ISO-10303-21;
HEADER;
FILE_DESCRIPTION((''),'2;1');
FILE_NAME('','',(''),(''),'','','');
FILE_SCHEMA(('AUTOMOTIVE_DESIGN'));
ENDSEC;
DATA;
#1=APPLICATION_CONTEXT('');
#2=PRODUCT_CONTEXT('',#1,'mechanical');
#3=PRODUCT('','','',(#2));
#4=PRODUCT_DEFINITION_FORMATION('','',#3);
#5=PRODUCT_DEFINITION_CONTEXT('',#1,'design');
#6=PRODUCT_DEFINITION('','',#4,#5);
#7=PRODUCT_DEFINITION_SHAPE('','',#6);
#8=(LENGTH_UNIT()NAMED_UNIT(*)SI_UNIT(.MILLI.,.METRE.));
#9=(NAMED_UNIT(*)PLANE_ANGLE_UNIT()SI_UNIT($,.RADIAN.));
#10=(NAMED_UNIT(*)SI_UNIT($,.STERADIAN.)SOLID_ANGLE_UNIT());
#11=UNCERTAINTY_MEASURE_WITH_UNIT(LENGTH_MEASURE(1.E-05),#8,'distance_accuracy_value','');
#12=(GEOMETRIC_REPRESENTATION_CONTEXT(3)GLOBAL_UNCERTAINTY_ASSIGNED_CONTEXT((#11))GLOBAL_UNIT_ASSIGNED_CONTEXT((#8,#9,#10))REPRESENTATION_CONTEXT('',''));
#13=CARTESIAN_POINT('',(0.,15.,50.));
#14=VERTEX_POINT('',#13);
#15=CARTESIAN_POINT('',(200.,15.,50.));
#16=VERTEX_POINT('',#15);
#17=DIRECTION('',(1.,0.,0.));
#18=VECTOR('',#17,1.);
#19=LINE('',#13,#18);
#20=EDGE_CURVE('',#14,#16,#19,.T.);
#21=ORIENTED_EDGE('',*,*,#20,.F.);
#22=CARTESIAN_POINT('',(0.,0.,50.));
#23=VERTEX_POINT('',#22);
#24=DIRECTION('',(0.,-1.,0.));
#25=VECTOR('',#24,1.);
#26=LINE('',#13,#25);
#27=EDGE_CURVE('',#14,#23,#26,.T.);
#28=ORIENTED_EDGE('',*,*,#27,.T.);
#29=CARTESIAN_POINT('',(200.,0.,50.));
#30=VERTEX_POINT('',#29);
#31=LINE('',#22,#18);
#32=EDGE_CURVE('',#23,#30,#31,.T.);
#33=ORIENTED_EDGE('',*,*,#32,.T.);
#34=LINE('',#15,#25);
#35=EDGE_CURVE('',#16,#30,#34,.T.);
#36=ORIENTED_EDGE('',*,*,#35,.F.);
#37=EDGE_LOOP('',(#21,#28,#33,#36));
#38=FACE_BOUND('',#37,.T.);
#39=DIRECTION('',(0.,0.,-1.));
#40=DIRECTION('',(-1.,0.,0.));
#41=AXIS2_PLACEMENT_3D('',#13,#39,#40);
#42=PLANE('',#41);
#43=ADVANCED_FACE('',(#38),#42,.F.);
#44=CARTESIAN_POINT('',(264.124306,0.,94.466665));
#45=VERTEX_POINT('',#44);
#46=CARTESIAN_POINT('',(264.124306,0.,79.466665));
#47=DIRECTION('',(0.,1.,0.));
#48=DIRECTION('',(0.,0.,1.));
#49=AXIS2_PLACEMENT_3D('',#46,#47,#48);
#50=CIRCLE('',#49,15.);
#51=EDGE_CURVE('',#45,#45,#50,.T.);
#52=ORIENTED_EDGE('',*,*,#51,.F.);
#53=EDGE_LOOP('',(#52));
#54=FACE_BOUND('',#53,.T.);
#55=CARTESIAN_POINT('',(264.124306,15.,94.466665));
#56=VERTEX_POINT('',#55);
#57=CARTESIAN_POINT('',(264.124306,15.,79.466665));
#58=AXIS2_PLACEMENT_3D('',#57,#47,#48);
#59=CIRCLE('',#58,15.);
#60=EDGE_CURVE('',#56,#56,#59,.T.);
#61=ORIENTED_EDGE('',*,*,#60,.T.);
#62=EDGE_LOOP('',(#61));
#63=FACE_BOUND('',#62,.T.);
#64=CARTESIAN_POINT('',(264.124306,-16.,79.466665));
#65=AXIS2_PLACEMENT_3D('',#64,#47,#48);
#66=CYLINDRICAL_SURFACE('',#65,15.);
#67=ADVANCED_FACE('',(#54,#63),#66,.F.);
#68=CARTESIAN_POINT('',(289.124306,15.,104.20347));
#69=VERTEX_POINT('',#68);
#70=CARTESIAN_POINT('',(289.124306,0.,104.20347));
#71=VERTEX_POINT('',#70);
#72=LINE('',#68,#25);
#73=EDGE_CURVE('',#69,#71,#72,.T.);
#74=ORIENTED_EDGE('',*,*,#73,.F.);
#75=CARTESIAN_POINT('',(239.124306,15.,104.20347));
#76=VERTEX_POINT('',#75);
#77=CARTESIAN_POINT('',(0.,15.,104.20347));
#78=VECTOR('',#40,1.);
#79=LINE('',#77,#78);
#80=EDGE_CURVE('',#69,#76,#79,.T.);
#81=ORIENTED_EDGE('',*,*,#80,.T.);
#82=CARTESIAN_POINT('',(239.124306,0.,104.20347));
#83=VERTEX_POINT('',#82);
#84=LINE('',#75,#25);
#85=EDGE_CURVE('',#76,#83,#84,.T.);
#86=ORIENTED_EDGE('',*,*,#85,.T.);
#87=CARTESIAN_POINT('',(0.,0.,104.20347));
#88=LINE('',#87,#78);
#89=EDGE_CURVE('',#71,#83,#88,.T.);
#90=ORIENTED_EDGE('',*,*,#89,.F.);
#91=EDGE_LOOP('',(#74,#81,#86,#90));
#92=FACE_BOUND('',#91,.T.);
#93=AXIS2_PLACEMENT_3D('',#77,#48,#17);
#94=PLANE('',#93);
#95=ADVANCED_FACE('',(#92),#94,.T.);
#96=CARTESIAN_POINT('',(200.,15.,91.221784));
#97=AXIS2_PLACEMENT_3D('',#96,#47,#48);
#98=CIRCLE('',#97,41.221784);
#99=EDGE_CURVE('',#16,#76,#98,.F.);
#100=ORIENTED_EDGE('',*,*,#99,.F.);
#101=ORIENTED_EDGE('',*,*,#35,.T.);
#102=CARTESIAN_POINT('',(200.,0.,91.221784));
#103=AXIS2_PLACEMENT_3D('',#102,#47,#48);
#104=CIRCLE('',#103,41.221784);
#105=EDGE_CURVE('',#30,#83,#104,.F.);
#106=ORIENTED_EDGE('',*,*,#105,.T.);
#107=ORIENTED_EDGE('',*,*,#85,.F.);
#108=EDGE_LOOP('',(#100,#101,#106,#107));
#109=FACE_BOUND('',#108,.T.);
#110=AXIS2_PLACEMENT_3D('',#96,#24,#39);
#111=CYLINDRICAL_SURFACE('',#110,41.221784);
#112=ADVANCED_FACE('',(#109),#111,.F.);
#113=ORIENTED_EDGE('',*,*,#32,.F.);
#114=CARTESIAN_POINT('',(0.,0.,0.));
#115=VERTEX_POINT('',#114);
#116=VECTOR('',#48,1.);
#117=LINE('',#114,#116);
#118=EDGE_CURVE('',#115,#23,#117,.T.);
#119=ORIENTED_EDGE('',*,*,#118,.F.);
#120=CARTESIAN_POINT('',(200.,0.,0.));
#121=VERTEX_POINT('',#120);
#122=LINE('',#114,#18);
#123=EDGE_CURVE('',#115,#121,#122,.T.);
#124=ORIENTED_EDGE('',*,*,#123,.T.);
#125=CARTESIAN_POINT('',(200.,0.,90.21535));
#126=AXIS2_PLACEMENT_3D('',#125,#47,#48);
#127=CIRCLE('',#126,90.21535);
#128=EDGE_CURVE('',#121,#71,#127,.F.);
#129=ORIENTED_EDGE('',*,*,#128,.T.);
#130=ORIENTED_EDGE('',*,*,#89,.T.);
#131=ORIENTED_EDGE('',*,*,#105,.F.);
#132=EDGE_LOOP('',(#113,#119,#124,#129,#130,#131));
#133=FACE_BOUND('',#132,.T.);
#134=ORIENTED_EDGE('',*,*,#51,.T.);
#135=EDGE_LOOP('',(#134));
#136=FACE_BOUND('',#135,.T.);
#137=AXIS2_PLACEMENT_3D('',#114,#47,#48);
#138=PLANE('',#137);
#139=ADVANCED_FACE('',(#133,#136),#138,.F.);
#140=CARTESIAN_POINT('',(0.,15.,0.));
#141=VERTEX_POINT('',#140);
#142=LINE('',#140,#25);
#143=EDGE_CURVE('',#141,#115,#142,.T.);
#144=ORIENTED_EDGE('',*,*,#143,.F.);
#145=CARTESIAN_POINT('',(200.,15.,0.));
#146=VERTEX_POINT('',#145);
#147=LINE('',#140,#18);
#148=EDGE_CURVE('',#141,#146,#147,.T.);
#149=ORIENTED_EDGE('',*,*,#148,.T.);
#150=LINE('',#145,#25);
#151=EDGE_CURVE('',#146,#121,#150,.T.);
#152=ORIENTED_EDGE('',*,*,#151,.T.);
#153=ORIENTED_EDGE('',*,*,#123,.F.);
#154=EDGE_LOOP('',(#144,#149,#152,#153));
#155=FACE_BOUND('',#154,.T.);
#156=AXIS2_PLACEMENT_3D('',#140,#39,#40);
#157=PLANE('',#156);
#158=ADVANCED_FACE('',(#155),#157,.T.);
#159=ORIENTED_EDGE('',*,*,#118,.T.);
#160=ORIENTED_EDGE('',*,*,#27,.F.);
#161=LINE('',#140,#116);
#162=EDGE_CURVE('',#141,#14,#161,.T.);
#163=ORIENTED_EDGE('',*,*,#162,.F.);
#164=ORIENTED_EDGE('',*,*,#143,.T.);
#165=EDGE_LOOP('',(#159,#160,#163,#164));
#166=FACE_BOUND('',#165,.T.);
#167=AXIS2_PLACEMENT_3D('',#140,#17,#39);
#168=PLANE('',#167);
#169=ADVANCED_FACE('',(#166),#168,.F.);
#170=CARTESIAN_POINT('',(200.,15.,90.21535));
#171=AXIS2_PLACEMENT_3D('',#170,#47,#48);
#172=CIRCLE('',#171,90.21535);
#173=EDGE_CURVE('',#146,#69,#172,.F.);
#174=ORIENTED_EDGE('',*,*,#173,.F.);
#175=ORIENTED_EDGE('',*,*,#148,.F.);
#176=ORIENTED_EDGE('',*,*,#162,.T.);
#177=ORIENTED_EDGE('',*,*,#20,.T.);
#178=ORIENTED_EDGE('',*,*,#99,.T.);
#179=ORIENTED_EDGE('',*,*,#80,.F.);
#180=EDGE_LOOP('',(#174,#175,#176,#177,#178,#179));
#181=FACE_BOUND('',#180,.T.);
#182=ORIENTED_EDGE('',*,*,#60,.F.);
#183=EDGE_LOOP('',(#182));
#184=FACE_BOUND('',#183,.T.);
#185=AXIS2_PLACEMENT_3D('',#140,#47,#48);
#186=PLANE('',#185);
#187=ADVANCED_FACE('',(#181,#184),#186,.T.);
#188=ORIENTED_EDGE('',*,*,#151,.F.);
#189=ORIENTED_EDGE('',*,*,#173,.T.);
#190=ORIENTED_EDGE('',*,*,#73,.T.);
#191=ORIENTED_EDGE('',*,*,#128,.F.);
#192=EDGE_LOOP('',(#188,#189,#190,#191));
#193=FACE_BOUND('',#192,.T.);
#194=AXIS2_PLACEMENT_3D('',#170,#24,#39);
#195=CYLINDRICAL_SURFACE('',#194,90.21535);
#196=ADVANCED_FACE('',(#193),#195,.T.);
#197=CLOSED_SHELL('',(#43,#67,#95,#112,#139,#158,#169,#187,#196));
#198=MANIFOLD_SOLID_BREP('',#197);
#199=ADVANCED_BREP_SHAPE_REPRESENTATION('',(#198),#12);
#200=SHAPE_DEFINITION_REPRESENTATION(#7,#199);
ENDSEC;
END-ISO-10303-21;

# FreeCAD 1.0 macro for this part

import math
import FreeCAD as App
import Part
import Sketcher
from FreeCAD import Vector

doc = App.newDocument("Part")
params = doc.addObject("Spreadsheet::Sheet", "Params")
for row, (alias, value) in enumerate([
    ("sketch1_width", "200 mm"),
    ("sketch1_width2", "50 mm"),
    ("pad1_length", "15 mm"),
    ("sketch2_diameter", "30 mm"),
    ("pocket1_length", "31 mm"),
], start=1):
    params.set(f"A{row}", alias)
    params.set(f"B{row}", "=" + value)
    params.setAlias(f"B{row}", alias)

body = doc.addObject("PartDesign::Body", "Body")

# Sketch on XZ plane
sketch1 = body.newObject("Sketcher::SketchObject", "Sketch")
sketch1.AttachmentSupport = (doc.getObject("XZ_Plane"), [""])
sketch1.MapMode = "FlatFace"
sketch1.addGeometry([
    Part.LineSegment(Vector(0, 50, 0), Vector(200, 50, 0)),  # 0
    Part.ArcOfCircle(Part.Circle(Vector(200, 91.221784, 0), Vector(0, 0, 1), 41.221784), math.radians(-90), math.radians(18.356162)),  # 1
    Part.LineSegment(Vector(239.124306, 104.20347, 0), Vector(289.124306, 104.20347, 0)),  # 2
    Part.ArcOfCircle(Part.Circle(Vector(200, 90.21535, 0), Vector(0, 0, 1), 90.21535), math.radians(-90), math.radians(8.919844)),  # 3
    Part.LineSegment(Vector(200, 0, 0), Vector(0, 0, 0)),  # 4
    Part.LineSegment(Vector(0, 0, 0), Vector(0, 50, 0)),  # 5
], False)
sketch1.addConstraint([
    Sketcher.Constraint("Tangent", 0, 2, 1, 1),
    Sketcher.Constraint("Coincident", 1, 2, 2, 1),
    Sketcher.Constraint("Coincident", 2, 2, 3, 2),
    Sketcher.Constraint("Tangent", 3, 1, 4, 1),
    Sketcher.Constraint("Coincident", 4, 2, 5, 1),
    Sketcher.Constraint("Coincident", 5, 2, 0, 1),
    Sketcher.Constraint("Horizontal", 0),
    Sketcher.Constraint("Horizontal", 2),
    Sketcher.Constraint("Horizontal", 4),
    Sketcher.Constraint("Vertical", 5),
    Sketcher.Constraint("Coincident", 4, 2, -1, 1),
    Sketcher.Constraint("Vertical", 1, 3, 3, 3),
    Sketcher.Constraint("Equal", 2, 5),
    Sketcher.Constraint("DistanceX", 0, 1, 0, 2, 200.0),
    Sketcher.Constraint("DistanceX", 2, 1, 2, 2, 50.0),
    Sketcher.Constraint("Radius", 3, 90.21535),
    Sketcher.Constraint("Radius", 1, 41.221784),
])
sketch1.setExpression("Constraints[13]", "Params.sketch1_width")
sketch1.setExpression("Constraints[14]", "Params.sketch1_width2")
pad1 = body.newObject("PartDesign::Pad", "Pad")
pad1.Profile = sketch1
pad1.setExpression("Length", "Params.pad1_length")
pad1.Reversed = True

# Sketch on XZ plane
sketch2 = body.newObject("Sketcher::SketchObject", "Sketch001")
sketch2.AttachmentSupport = (doc.getObject("XZ_Plane"), [""])
sketch2.MapMode = "FlatFace"
sketch2.AttachmentOffset = App.Placement(Vector(0, 0, -15), App.Rotation())
sketch2.addGeometry(Part.Circle(Vector(264.124306, 79.466665, 0), Vector(0, 0, 1), 15), False)
sketch2.addConstraint([
    Sketcher.Constraint("Diameter", 0, 30.0),
    Sketcher.Constraint("DistanceX", -1, 1, 0, 3, 264.124306),
    Sketcher.Constraint("DistanceY", -1, 1, 0, 3, 79.466665),
])
sketch2.setExpression("Constraints[0]", "Params.sketch2_diameter")
pocket1 = body.newObject("PartDesign::Pocket", "Pocket")
pocket1.Profile = sketch2
pocket1.setExpression("Length", "Params.pocket1_length")
pocket1.Reversed = True

doc.recompute()
